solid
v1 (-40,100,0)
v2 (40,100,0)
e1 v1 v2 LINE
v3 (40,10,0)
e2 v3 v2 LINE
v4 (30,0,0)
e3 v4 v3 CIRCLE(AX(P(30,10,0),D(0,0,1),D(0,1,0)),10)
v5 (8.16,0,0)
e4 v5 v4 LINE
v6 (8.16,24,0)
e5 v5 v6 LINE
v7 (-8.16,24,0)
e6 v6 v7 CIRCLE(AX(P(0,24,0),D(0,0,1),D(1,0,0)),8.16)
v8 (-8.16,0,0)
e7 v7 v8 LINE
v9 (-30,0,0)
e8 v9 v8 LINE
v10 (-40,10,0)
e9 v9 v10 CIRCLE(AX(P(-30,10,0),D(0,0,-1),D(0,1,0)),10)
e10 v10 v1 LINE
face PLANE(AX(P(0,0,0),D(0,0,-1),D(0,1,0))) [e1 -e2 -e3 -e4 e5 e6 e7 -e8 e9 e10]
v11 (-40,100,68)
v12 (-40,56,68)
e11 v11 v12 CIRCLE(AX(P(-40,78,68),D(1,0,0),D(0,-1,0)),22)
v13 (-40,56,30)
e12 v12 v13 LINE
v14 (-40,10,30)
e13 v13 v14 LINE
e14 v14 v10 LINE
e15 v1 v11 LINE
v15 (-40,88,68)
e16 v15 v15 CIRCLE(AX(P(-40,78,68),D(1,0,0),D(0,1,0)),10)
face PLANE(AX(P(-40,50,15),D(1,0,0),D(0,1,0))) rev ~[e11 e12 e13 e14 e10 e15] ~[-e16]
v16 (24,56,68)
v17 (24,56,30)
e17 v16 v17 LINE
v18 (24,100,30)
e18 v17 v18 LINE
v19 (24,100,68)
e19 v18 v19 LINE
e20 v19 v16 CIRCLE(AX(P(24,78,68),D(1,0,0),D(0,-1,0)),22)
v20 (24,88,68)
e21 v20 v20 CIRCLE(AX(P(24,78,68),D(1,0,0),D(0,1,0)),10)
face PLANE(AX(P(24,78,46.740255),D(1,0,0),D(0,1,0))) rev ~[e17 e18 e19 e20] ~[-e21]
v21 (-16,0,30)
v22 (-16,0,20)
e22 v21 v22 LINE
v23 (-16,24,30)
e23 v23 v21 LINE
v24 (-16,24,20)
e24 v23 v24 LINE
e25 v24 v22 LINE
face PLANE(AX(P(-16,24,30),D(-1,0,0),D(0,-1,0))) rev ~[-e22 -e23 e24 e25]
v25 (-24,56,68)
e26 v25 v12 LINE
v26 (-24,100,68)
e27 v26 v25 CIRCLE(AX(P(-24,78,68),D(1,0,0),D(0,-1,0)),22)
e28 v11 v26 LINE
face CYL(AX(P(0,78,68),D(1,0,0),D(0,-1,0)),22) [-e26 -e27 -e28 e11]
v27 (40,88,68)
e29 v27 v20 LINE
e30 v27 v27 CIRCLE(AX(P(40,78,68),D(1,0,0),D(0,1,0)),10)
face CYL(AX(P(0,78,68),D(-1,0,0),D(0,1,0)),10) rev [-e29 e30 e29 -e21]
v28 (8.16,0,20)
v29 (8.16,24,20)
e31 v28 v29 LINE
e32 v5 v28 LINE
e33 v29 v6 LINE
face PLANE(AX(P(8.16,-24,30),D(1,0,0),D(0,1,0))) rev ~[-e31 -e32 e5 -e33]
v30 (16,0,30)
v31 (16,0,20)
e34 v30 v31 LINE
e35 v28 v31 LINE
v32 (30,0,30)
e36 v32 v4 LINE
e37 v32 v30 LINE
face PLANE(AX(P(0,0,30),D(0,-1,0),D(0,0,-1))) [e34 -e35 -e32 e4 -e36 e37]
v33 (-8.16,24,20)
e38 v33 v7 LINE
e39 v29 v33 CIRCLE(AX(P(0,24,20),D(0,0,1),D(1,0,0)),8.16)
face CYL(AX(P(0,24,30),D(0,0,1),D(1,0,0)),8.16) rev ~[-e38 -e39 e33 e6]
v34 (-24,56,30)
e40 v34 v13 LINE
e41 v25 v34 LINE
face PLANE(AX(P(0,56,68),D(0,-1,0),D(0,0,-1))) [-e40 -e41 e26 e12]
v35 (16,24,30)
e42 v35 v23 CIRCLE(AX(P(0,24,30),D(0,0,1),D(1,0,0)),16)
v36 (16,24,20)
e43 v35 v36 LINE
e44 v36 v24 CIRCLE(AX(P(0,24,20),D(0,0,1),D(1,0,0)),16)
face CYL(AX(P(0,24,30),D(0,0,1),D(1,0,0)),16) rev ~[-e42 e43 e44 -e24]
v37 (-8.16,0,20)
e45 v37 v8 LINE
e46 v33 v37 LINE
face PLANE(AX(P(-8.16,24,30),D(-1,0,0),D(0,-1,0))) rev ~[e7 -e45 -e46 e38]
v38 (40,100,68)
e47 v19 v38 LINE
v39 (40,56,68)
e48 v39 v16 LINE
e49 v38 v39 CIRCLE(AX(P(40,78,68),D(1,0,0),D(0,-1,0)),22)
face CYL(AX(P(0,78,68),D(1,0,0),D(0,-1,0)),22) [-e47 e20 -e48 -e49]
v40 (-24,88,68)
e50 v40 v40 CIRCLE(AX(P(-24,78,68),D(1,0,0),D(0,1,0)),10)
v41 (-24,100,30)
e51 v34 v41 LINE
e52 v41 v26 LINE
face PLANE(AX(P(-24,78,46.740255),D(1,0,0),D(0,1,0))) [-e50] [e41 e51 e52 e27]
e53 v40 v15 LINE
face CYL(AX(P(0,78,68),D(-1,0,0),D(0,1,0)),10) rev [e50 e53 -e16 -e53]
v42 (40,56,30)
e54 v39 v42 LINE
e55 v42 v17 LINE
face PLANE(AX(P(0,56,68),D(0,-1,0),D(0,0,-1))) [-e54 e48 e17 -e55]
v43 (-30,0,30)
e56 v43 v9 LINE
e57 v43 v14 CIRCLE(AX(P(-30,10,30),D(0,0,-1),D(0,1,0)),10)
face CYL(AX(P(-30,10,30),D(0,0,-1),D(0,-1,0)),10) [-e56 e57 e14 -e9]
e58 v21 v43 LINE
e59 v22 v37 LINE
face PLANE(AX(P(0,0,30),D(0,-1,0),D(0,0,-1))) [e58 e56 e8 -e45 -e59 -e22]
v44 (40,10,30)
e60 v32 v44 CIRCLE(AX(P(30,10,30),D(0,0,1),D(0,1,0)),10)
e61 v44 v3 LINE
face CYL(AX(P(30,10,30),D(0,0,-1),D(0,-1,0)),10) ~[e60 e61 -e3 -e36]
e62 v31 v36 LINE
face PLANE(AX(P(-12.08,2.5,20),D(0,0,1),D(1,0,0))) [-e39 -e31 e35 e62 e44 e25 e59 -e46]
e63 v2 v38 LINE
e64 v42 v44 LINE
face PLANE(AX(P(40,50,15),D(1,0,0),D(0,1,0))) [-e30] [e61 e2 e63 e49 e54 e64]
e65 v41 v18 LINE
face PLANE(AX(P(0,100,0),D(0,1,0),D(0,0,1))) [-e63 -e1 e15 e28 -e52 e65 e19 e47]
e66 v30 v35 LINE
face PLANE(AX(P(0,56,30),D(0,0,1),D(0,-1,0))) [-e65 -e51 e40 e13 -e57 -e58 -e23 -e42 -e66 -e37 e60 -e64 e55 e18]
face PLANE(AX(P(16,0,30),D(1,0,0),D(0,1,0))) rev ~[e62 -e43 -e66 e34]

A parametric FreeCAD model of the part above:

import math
import FreeCAD as App
import Part
import Sketcher
from FreeCAD import Vector


def edges_at(feature, points):
    """Names of the edges that pass closest to the given points."""
    edges = feature.Shape.Edges
    near = lambda p: min(range(len(edges)), key=lambda i: edges[i].distToShape(Part.Vertex(*p))[0])
    return sorted({f"Edge{near(p) + 1}" for p in points})

doc = App.newDocument("Part")
body = doc.addObject("PartDesign::Body", "Body")

sketch1 = body.newObject("Sketcher::SketchObject", "Sketch")
sketch1.AttachmentSupport = (doc.getObject("YZ_Plane"), [""])
sketch1.MapMode = "FlatFace"
sketch1.addGeometry(Part.LineSegment(Vector(0, 30, 0), Vector(0, 0, 0)), False)
sketch1.addGeometry(Part.LineSegment(Vector(0, 0, 0), Vector(100, 0, 0)), False)
sketch1.addGeometry(Part.LineSegment(Vector(100, 0, 0), Vector(100, 68, 0)), False)
sketch1.addGeometry(Part.ArcOfCircle(Part.Circle(Vector(78, 68, 0), Vector(0, 0, 1), 22), math.radians(0), math.radians(180)), False)
sketch1.addGeometry(Part.LineSegment(Vector(56, 68, 0), Vector(56, 30, 0)), False)
sketch1.addGeometry(Part.LineSegment(Vector(56, 30, 0), Vector(0, 30, 0)), False)
sketch1.addGeometry(Part.Circle(Vector(78, 68, 0), Vector(0, 0, 1), 10), False)
sketch1.addConstraint(Sketcher.Constraint("Coincident", 0, 2, 1, 1))
sketch1.addConstraint(Sketcher.Constraint("Coincident", 1, 2, 2, 1))
sketch1.addConstraint(Sketcher.Constraint("Tangent", 2, 2, 3, 1))
sketch1.addConstraint(Sketcher.Constraint("Tangent", 3, 2, 4, 1))
sketch1.addConstraint(Sketcher.Constraint("Coincident", 4, 2, 5, 1))
sketch1.addConstraint(Sketcher.Constraint("Coincident", 5, 2, 0, 1))
sketch1.addConstraint(Sketcher.Constraint("Vertical", 0))
sketch1.addConstraint(Sketcher.Constraint("Horizontal", 1))
sketch1.addConstraint(Sketcher.Constraint("Vertical", 2))
sketch1.addConstraint(Sketcher.Constraint("Vertical", 4))
sketch1.addConstraint(Sketcher.Constraint("Horizontal", 5))
sketch1.addConstraint(Sketcher.Constraint("Coincident", 0, 2, -1, 1))
sketch1.addConstraint(Sketcher.Constraint("Coincident", 6, 3, 3, 3))
sketch1.addConstraint(Sketcher.Constraint("Diameter", 6, 20.0))
sketch1.addConstraint(Sketcher.Constraint("Radius", 3, 22.0))
sketch1.addConstraint(Sketcher.Constraint("DistanceX", 1, 1, 1, 2, 100.0))
sketch1.addConstraint(Sketcher.Constraint("DistanceY", 0, 2, 0, 1, 30.0))
sketch1.addConstraint(Sketcher.Constraint("DistanceY", 2, 1, 2, 2, 68.0))
pad1 = body.newObject("PartDesign::Pad", "Pad")
pad1.Profile = sketch1
pad1.Length = 80
pad1.Midplane = True

sketch2 = body.newObject("Sketcher::SketchObject", "Sketch001")
sketch2.AttachmentSupport = (doc.getObject("YZ_Plane"), [""])
sketch2.MapMode = "FlatFace"
sketch2.addGeometry(Part.LineSegment(Vector(56, 68, 0), Vector(56, 30, 0)), False)
sketch2.addGeometry(Part.LineSegment(Vector(56, 30, 0), Vector(100, 30, 0)), False)
sketch2.addGeometry(Part.LineSegment(Vector(100, 30, 0), Vector(100, 68, 0)), False)
sketch2.addGeometry(Part.ArcOfCircle(Part.Circle(Vector(78, 68, 0), Vector(0, 0, 1), 22), math.radians(0), math.radians(180)), False)
sketch2.addGeometry(Part.Circle(Vector(78, 68, 0), Vector(0, 0, 1), 10), False)
sketch2.addConstraint(Sketcher.Constraint("Coincident", 0, 2, 1, 1))
sketch2.addConstraint(Sketcher.Constraint("Coincident", 1, 2, 2, 1))
sketch2.addConstraint(Sketcher.Constraint("Tangent", 2, 2, 3, 1))
sketch2.addConstraint(Sketcher.Constraint("Tangent", 3, 2, 0, 1))
sketch2.addConstraint(Sketcher.Constraint("Vertical", 0))
sketch2.addConstraint(Sketcher.Constraint("Horizontal", 1))
sketch2.addConstraint(Sketcher.Constraint("Vertical", 2))
sketch2.addConstraint(Sketcher.Constraint("Coincident", 4, 3, 3, 3))
sketch2.addConstraint(Sketcher.Constraint("Diameter", 4, 20.0))
sketch2.addConstraint(Sketcher.Constraint("Radius", 3, 22.0))
sketch2.addConstraint(Sketcher.Constraint("DistanceY", 0, 2, 0, 1, 38.0))
sketch2.addConstraint(Sketcher.Constraint("DistanceX", -1, 1, 3, 3, 78.0))
sketch2.addConstraint(Sketcher.Constraint("DistanceY", -1, 1, 3, 3, 68.0))
pocket1 = body.newObject("PartDesign::Pocket", "Pocket")
pocket1.Profile = sketch2
pocket1.Length = 48
pocket1.Midplane = True

sketch3 = body.newObject("Sketcher::SketchObject", "Sketch002")
sketch3.AttachmentSupport = (doc.getObject("XY_Plane"), [""])
sketch3.MapMode = "FlatFace"
sketch3.AttachmentOffset = App.Placement(Vector(0, 0, 30), App.Rotation())
sketch3.addGeometry(Part.LineSegment(Vector(-16, 0, 0), Vector(16, 0, 0)), False)
sketch3.addGeometry(Part.LineSegment(Vector(16, 0, 0), Vector(16, 24, 0)), False)
sketch3.addGeometry(Part.ArcOfCircle(Part.Circle(Vector(0, 24, 0), Vector(0, 0, 1), 16), math.radians(0), math.radians(180)), False)
sketch3.addGeometry(Part.LineSegment(Vector(-16, 24, 0), Vector(-16, 0, 0)), False)
sketch3.addConstraint(Sketcher.Constraint("Coincident", 0, 2, 1, 1))
sketch3.addConstraint(Sketcher.Constraint("Tangent", 1, 2, 2, 1))
sketch3.addConstraint(Sketcher.Constraint("Tangent", 2, 2, 3, 1))
sketch3.addConstraint(Sketcher.Constraint("Coincident", 3, 2, 0, 1))
sketch3.addConstraint(Sketcher.Constraint("Horizontal", 0))
sketch3.addConstraint(Sketcher.Constraint("Vertical", 1))
sketch3.addConstraint(Sketcher.Constraint("Vertical", 3))
sketch3.addConstraint(Sketcher.Constraint("Symmetric", 0, 2, 3, 2, -1, 1))
sketch3.addConstraint(Sketcher.Constraint("Radius", 2, 16.0))
sketch3.addConstraint(Sketcher.Constraint("DistanceY", 1, 1, 1, 2, 24.0))
pocket2 = body.newObject("PartDesign::Pocket", "Pocket001")
pocket2.Profile = sketch3
pocket2.Length = 10

sketch4 = body.newObject("Sketcher::SketchObject", "Sketch003")
sketch4.AttachmentSupport = (doc.getObject("XY_Plane"), [""])
sketch4.MapMode = "FlatFace"
sketch4.AttachmentOffset = App.Placement(Vector(0, 0, 30), App.Rotation())
sketch4.addGeometry(Part.LineSegment(Vector(-8, 24, 0), Vector(-8, -24, 0)), False)
sketch4.addGeometry(Part.LineSegment(Vector(-8, -24, 0), Vector(8, -24, 0)), False)
sketch4.addGeometry(Part.LineSegment(Vector(8, -24, 0), Vector(8, 24, 0)), False)
sketch4.addGeometry(Part.ArcOfCircle(Part.Circle(Vector(0, 24, 0), Vector(0, 0, 1), 8), math.radians(0), math.radians(180)), False)
sketch4.addConstraint(Sketcher.Constraint("Coincident", 0, 2, 1, 1))
sketch4.addConstraint(Sketcher.Constraint("Coincident", 1, 2, 2, 1))
sketch4.addConstraint(Sketcher.Constraint("Tangent", 2, 2, 3, 1))
sketch4.addConstraint(Sketcher.Constraint("Tangent", 3, 2, 0, 1))
sketch4.addConstraint(Sketcher.Constraint("Vertical", 0))
sketch4.addConstraint(Sketcher.Constraint("Horizontal", 1))
sketch4.addConstraint(Sketcher.Constraint("Vertical", 2))
sketch4.addConstraint(Sketcher.Constraint("Symmetric", 0, 2, 2, 2, -1, 1))
sketch4.addConstraint(Sketcher.Constraint("DistanceY", 0, 2, 0, 1, 48.0))
sketch4.addConstraint(Sketcher.Constraint("Radius", 3, 8.16))
pocket3 = body.newObject("PartDesign::Pocket", "Pocket002")
pocket3.Profile = sketch4
pocket3.Type = "ThroughAll"
doc.recompute()

fillet = body.newObject("PartDesign::Fillet", "Fillet")
fillet.Base = (pocket3, edges_at(pocket3, [(-40, 0, 15), (40, 0, 15)]))
fillet.Radius = 10

doc.recompute()
